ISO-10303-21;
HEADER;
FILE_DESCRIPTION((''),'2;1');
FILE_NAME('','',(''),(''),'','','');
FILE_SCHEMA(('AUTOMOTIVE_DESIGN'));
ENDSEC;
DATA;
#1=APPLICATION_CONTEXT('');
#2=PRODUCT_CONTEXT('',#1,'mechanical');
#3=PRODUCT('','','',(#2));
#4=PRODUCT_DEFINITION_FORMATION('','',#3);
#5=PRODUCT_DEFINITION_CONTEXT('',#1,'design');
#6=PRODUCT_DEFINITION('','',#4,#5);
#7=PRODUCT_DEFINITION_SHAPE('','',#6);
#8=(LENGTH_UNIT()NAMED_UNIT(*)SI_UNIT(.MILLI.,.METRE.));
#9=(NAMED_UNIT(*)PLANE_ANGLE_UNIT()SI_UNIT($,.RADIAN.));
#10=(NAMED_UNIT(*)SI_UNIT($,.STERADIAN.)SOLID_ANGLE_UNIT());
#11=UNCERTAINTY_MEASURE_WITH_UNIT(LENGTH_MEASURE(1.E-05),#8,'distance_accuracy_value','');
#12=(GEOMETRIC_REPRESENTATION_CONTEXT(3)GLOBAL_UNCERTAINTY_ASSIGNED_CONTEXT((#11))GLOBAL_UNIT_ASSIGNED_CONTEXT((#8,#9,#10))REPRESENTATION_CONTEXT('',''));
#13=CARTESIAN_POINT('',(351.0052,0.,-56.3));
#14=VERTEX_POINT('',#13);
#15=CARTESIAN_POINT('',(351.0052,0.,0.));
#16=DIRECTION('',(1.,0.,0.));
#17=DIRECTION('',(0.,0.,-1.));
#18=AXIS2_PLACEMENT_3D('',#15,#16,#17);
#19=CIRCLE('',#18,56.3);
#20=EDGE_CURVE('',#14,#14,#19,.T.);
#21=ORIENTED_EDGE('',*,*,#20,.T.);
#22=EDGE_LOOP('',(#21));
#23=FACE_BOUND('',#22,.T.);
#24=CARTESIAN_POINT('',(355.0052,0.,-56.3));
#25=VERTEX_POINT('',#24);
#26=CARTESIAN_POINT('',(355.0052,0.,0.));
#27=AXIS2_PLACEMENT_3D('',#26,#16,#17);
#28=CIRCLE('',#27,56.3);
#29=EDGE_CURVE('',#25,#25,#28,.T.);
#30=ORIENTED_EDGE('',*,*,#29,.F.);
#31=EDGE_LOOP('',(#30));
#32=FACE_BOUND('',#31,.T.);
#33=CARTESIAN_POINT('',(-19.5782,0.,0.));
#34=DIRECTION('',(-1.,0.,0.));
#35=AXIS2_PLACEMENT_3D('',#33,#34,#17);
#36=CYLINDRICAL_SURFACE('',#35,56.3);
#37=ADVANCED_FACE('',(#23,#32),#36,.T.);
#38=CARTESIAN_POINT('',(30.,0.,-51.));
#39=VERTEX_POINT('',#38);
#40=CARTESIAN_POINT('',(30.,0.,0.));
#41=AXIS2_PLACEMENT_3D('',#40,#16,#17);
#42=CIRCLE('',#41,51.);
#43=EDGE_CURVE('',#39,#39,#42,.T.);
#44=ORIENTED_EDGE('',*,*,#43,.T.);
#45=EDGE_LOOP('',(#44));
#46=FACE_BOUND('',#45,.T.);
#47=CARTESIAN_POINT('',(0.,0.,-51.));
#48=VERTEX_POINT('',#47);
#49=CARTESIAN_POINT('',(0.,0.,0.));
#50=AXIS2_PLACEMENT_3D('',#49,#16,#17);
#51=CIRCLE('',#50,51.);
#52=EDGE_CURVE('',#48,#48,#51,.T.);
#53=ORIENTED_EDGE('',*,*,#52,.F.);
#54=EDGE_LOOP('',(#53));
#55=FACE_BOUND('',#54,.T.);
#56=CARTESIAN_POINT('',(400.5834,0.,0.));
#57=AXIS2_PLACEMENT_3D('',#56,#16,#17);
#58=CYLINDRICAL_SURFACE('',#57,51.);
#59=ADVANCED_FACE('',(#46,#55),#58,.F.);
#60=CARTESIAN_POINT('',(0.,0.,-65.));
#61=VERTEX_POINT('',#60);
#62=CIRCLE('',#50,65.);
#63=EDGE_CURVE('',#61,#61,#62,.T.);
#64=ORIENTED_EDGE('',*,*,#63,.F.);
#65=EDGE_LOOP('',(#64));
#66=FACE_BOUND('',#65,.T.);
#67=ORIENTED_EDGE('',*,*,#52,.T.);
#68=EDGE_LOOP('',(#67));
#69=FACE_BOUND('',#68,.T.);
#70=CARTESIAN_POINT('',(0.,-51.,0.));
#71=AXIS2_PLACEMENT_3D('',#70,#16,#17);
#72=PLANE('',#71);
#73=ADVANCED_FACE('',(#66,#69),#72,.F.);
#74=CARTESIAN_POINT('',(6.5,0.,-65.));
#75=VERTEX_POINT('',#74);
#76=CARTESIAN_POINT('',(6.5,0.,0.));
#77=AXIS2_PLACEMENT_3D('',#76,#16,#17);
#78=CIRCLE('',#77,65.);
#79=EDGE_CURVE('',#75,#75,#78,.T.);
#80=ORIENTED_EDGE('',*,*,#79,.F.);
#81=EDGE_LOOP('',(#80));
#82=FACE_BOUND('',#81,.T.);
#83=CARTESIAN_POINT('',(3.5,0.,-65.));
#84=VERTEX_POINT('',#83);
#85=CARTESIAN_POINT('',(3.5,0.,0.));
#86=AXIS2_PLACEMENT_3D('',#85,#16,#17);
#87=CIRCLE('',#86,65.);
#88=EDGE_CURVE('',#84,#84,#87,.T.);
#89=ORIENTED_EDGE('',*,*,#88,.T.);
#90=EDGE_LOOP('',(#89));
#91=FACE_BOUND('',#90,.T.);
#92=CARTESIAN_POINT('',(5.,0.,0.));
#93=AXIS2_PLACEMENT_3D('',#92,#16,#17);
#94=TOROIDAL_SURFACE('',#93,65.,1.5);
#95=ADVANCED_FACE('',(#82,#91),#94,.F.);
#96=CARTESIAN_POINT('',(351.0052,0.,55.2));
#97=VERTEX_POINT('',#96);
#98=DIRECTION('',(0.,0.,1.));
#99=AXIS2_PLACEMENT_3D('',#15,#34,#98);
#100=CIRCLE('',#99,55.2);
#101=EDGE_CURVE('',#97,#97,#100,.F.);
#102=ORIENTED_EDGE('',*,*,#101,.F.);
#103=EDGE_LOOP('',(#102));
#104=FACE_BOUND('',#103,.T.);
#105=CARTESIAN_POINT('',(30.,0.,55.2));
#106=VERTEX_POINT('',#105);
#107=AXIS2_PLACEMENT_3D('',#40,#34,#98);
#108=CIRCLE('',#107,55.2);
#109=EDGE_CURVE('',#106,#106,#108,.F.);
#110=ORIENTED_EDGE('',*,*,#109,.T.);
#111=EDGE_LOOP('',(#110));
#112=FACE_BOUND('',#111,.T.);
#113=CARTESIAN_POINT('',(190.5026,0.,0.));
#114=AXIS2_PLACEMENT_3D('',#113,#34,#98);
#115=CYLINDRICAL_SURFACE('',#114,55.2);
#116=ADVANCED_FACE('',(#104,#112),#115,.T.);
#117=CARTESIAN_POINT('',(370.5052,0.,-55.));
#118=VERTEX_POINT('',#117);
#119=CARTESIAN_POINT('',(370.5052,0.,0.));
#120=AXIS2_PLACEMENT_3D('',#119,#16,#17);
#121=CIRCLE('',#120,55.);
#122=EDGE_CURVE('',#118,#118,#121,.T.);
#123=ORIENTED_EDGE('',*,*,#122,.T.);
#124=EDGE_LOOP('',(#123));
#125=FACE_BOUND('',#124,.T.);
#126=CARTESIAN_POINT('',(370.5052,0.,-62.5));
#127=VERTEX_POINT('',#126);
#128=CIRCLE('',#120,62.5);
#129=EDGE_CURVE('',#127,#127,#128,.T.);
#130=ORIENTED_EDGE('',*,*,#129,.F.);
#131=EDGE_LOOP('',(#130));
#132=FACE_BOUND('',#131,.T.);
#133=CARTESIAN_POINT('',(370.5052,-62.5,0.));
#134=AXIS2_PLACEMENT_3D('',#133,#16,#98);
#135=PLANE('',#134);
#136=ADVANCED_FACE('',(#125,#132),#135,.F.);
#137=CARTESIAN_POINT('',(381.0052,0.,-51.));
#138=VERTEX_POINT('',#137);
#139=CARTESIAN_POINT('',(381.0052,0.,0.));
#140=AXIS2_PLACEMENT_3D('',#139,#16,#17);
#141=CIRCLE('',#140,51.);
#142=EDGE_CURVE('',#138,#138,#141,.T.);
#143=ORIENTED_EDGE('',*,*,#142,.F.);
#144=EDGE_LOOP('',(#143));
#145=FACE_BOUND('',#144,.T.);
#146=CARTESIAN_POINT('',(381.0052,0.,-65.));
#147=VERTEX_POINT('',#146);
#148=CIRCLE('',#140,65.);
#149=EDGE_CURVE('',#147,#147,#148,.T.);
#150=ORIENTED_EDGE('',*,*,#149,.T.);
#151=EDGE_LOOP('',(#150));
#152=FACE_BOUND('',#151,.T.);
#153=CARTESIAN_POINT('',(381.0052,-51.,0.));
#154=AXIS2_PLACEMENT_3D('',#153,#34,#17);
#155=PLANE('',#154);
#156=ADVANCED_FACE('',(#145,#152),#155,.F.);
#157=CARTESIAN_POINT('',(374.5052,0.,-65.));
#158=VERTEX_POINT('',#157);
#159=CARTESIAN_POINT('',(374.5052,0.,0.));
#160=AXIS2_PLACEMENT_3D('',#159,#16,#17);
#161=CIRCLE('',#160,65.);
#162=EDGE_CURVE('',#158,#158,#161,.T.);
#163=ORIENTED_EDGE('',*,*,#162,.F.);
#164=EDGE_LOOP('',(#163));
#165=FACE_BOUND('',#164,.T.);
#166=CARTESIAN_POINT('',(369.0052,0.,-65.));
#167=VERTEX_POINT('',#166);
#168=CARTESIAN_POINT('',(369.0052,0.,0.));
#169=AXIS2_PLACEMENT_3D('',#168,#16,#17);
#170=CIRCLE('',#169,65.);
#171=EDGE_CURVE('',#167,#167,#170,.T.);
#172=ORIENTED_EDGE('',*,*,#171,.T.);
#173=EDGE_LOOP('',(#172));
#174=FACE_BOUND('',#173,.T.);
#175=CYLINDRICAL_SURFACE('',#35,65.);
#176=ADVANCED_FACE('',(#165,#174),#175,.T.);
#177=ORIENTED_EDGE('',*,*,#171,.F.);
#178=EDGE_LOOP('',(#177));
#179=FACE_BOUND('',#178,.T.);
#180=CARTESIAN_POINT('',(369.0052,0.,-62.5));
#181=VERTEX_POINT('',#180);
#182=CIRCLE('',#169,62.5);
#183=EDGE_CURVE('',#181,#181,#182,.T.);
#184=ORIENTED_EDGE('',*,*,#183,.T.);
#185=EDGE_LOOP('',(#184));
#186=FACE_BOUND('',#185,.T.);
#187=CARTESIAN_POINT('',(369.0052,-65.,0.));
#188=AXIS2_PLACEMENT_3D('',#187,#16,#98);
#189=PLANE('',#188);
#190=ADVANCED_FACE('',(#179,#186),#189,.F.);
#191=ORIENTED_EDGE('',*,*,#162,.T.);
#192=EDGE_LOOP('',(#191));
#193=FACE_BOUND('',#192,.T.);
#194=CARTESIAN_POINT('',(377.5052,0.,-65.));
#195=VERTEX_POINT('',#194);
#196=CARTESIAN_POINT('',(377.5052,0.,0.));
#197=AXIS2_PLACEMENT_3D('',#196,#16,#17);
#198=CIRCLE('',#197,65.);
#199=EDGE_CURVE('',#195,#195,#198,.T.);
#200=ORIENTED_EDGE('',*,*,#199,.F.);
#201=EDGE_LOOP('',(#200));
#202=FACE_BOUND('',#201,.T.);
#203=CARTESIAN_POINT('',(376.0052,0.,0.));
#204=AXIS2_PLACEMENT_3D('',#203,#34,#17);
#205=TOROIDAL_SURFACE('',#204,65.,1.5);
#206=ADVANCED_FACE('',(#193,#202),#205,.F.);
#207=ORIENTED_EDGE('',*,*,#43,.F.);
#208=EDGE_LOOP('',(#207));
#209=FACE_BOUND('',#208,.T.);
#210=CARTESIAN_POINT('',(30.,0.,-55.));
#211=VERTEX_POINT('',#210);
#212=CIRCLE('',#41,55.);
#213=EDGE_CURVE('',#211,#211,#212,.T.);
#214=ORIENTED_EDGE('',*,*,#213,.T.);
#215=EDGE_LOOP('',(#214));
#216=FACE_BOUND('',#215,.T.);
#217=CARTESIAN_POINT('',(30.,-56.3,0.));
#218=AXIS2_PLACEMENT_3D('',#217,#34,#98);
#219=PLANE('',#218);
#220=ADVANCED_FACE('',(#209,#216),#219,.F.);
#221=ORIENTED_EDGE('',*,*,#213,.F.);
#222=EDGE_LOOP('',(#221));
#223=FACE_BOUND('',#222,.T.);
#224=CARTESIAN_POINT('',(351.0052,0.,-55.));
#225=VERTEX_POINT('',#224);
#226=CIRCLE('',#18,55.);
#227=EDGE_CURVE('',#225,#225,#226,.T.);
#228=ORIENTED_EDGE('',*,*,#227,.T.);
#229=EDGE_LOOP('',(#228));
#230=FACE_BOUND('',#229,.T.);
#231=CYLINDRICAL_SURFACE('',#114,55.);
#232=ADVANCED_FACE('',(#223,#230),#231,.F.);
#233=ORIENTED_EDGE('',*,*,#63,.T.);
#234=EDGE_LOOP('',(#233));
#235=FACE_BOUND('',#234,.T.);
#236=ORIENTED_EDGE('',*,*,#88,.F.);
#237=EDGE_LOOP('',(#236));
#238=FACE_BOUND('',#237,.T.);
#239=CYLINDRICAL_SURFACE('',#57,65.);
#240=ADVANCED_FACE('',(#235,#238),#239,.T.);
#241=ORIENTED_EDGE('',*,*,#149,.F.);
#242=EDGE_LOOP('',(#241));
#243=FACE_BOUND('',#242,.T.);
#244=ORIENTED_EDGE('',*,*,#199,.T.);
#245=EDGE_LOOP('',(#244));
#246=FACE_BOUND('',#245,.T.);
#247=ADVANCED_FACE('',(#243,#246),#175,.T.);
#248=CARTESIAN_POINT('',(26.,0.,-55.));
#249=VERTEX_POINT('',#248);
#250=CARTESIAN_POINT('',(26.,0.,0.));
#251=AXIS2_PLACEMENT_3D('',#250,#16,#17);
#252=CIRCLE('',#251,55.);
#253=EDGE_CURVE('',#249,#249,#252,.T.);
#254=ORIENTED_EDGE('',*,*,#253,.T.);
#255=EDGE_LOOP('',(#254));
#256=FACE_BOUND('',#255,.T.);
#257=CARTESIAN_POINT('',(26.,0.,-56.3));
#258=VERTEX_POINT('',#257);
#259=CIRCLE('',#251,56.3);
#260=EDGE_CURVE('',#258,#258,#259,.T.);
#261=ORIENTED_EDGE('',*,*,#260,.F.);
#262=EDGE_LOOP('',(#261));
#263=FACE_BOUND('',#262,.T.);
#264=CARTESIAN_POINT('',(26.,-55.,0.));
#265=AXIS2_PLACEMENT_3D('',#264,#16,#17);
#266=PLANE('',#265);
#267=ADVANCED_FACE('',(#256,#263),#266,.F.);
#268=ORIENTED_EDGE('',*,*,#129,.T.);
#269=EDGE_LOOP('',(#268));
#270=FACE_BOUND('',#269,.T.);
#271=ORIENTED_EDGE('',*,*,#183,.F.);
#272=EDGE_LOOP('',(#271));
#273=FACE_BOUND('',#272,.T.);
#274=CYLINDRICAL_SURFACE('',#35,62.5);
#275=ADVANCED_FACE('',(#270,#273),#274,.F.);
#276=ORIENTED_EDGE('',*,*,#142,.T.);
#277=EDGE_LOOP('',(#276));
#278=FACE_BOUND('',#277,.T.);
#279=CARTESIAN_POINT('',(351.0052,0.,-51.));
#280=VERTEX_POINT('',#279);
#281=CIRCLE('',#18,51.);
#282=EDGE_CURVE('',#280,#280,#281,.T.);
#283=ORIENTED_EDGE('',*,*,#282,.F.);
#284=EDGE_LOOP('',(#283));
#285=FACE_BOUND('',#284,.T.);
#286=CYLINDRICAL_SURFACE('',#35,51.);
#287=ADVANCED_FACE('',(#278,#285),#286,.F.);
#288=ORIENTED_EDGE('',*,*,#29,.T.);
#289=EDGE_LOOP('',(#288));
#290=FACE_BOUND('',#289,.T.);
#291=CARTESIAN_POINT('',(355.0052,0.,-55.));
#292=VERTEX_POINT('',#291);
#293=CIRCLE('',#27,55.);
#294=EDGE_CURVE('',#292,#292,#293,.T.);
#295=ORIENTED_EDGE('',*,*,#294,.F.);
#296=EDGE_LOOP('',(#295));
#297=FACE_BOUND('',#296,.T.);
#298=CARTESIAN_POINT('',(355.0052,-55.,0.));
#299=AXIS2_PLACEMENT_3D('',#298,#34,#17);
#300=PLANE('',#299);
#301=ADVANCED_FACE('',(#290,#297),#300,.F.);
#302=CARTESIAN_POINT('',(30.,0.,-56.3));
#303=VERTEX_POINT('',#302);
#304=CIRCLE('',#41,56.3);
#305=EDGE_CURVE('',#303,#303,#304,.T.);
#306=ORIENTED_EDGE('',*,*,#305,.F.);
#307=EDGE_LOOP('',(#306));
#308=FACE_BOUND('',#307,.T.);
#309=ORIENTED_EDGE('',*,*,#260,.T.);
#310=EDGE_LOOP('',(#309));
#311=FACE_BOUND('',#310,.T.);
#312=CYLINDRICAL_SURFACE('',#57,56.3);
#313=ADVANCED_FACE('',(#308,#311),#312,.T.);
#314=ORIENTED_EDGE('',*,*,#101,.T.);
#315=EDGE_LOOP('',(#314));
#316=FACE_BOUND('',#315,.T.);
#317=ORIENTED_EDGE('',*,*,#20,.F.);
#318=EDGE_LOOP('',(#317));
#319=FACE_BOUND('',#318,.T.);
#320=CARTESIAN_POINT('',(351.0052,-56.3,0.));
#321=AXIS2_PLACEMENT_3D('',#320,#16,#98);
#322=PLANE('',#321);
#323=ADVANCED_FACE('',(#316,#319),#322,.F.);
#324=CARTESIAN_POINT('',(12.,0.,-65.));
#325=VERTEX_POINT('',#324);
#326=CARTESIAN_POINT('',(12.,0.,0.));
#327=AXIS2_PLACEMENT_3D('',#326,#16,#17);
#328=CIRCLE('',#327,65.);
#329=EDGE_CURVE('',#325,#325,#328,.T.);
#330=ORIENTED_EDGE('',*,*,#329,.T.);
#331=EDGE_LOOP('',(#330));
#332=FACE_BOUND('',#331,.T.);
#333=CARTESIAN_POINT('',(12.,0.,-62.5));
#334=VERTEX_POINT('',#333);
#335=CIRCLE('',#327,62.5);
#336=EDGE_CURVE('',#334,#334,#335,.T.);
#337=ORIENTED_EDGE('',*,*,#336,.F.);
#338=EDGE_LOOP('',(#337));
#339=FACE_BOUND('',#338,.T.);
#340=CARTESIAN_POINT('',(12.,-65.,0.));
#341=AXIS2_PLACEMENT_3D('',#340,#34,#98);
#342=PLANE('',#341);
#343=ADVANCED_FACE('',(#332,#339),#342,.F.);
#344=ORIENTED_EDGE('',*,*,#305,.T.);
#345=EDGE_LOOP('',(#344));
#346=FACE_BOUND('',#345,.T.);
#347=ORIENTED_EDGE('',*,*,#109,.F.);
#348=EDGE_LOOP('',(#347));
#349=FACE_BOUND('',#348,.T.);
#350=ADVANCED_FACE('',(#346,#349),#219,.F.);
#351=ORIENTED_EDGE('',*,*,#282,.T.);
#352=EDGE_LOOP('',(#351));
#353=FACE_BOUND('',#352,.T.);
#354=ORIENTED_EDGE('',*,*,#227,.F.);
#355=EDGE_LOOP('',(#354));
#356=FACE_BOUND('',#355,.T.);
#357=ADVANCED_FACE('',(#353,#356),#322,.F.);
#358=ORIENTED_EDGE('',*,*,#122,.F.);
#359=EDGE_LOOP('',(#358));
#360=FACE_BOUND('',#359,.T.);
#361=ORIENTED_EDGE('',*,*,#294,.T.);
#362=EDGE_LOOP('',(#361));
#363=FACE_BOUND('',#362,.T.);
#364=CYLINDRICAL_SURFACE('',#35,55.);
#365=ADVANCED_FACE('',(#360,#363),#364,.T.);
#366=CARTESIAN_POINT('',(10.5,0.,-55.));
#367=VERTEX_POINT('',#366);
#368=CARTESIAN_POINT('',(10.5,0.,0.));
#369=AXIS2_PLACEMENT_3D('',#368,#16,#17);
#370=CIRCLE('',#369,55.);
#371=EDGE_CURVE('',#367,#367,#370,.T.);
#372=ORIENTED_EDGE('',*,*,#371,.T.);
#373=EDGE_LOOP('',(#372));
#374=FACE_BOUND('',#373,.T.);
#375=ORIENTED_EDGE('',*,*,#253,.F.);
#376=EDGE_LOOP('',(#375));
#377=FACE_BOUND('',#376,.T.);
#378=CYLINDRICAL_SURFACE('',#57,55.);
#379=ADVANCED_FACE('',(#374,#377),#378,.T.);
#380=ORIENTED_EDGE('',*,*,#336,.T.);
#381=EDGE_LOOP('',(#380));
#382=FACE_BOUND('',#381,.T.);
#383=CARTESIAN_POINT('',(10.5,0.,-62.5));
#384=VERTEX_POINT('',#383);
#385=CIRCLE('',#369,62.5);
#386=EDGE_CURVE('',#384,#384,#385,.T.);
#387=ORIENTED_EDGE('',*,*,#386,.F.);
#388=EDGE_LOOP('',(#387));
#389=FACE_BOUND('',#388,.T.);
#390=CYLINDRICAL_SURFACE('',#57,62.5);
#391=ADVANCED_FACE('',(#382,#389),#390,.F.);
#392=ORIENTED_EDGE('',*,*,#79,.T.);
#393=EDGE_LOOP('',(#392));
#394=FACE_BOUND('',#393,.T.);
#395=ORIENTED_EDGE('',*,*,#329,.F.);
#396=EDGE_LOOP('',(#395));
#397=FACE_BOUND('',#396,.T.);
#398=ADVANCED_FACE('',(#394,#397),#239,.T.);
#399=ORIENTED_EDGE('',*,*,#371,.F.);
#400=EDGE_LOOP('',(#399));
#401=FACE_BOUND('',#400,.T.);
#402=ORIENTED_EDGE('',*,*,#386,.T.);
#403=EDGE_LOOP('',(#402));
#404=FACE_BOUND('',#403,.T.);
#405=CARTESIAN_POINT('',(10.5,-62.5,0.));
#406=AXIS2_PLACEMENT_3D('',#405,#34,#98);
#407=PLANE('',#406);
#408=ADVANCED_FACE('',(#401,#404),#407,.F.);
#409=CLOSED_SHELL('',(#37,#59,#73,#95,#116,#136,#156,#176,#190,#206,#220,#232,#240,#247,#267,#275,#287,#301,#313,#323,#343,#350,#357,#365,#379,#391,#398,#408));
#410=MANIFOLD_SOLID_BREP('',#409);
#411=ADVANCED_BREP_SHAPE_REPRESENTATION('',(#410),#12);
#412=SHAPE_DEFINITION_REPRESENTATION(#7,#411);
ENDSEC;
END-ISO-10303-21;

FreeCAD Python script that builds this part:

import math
import FreeCAD as App
import Part
import Sketcher
Q = App.Units.Quantity

doc = App.newDocument("Part")
params = doc.addObject("Spreadsheet::Sheet", "Params")
for row, (alias, value) in enumerate([
    ("sketch1_radius", "1.5 mm"),
    ("sketch1_width", "4 mm"),
    ("sketch1_width2", "30 mm"),
    ("sketch1_height", "14 mm"),
    ("sketch1_width3", "3.5 mm"),
    ("revolution_angle", "360 deg"),
    ("sketch2_diameter", "110 mm"),
    ("sketch2_diameter2", "110.4 mm"),
    ("pad1_length", "160.5026 mm"),
], start=1):
    params.set(f"A{row}", alias)
    params.set(f"B{row}", "=" + value)
    params.setAlias(f"B{row}", alias)

body = doc.addObject("PartDesign::Body", "Body")

sketch1 = body.newObject("Sketcher::SketchObject", "Sketch")
sketch1.AttachmentSupport = (doc.getObject("XY_Plane"), [""])
sketch1.MapMode = "FlatFace"
sketch1.addGeometry(Part.LineSegment(App.Vector(0, -51, 0), App.Vector(0, -65, 0)), False)
sketch1.addGeometry(Part.LineSegment(App.Vector(0, -65, 0), App.Vector(3.5, -65, 0)), False)
sketch1.addGeometry(Part.ArcOfCircle(Part.Circle(App.Vector(5, -65, 0), App.Vector(0, 0, 1), 1.5), math.radians(0), math.radians(180)), False)
sketch1.addGeometry(Part.LineSegment(App.Vector(6.5, -65, 0), App.Vector(12, -65, 0)), False)
sketch1.addGeometry(Part.LineSegment(App.Vector(12, -65, 0), App.Vector(12, -62.5, 0)), False)
sketch1.addGeometry(Part.LineSegment(App.Vector(12, -62.5, 0), App.Vector(10.5, -62.5, 0)), False)
sketch1.addGeometry(Part.LineSegment(App.Vector(10.5, -62.5, 0), App.Vector(10.5, -55, 0)), False)
sketch1.addGeometry(Part.LineSegment(App.Vector(10.5, -55, 0), App.Vector(26, -55, 0)), False)
sketch1.addGeometry(Part.LineSegment(App.Vector(26, -55, 0), App.Vector(26, -56.3, 0)), False)
sketch1.addGeometry(Part.LineSegment(App.Vector(26, -56.3, 0), App.Vector(30, -56.3, 0)), False)
sketch1.addGeometry(Part.LineSegment(App.Vector(30, -56.3, 0), App.Vector(30, -51, 0)), False)
sketch1.addGeometry(Part.LineSegment(App.Vector(30, -51, 0), App.Vector(0, -51, 0)), False)
sketch1.addConstraint(Sketcher.Constraint("Coincident", 0, 2, 1, 1))
sketch1.addConstraint(Sketcher.Constraint("Coincident", 1, 2, 2, 2))
sketch1.addConstraint(Sketcher.Constraint("Coincident", 2, 1, 3, 1))
sketch1.addConstraint(Sketcher.Constraint("Coincident", 3, 2, 4, 1))
sketch1.addConstraint(Sketcher.Constraint("Coincident", 4, 2, 5, 1))
sketch1.addConstraint(Sketcher.Constraint("Coincident", 5, 2, 6, 1))
sketch1.addConstraint(Sketcher.Constraint("Coincident", 6, 2, 7, 1))
sketch1.addConstraint(Sketcher.Constraint("Coincident", 7, 2, 8, 1))
sketch1.addConstraint(Sketcher.Constraint("Coincident", 8, 2, 9, 1))
sketch1.addConstraint(Sketcher.Constraint("Coincident", 9, 2, 10, 1))
sketch1.addConstraint(Sketcher.Constraint("Coincident", 10, 2, 11, 1))
sketch1.addConstraint(Sketcher.Constraint("Coincident", 11, 2, 0, 1))
sketch1.addConstraint(Sketcher.Constraint("Vertical", 0))
sketch1.addConstraint(Sketcher.Constraint("Horizontal", 1))
sketch1.addConstraint(Sketcher.Constraint("Horizontal", 3))
sketch1.addConstraint(Sketcher.Constraint("Vertical", 4))
sketch1.addConstraint(Sketcher.Constraint("Horizontal", 5))
sketch1.addConstraint(Sketcher.Constraint("Vertical", 6))
sketch1.addConstraint(Sketcher.Constraint("Horizontal", 7))
sketch1.addConstraint(Sketcher.Constraint("Vertical", 8))
sketch1.addConstraint(Sketcher.Constraint("Horizontal", 9))
sketch1.addConstraint(Sketcher.Constraint("Vertical", 10))
sketch1.addConstraint(Sketcher.Constraint("Horizontal", 11))
sketch1.addConstraint(Sketcher.Constraint("PointOnObject", 0, 2, -2))
sketch1.addConstraint(Sketcher.Constraint("Horizontal", 2, 3, 0, 2))
sketch1.addConstraint(Sketcher.Constraint("Horizontal", 1, 2, 2, 1))
sketch1.addConstraint(Sketcher.Constraint("Radius", 2, Q("1.5 mm")))
sketch1.addConstraint(Sketcher.Constraint("DistanceX", 9, 1, 9, 2, Q("4 mm")))
sketch1.addConstraint(Sketcher.Constraint("DistanceX", 11, 2, 11, 1, Q("30 mm")))
sketch1.addConstraint(Sketcher.Constraint("DistanceY", 0, 2, 0, 1, Q("14 mm")))
sketch1.addConstraint(Sketcher.Constraint("DistanceX", 1, 1, 1, 2, Q("3.5 mm")))
sketch1.addConstraint(Sketcher.Constraint("DistanceX", 3, 1, 3, 2, Q("5.5 mm")))
sketch1.addConstraint(Sketcher.Constraint("DistanceX", 5, 2, 5, 1, Q("1.5 mm")))
sketch1.addConstraint(Sketcher.Constraint("DistanceY", 4, 1, 4, 2, Q("2.5 mm")))
sketch1.addConstraint(Sketcher.Constraint("DistanceY", 6, 1, 6, 2, Q("7.5 mm")))
sketch1.addConstraint(Sketcher.Constraint("DistanceY", 8, 2, 8, 1, Q("1.3 mm")))
sketch1.addConstraint(Sketcher.Constraint("DistanceY", 2, 3, -1, 1, Q("65 mm")))
sketch1.setExpression("Constraints[26]", "Params.sketch1_radius")
sketch1.setExpression("Constraints[27]", "Params.sketch1_width")
sketch1.setExpression("Constraints[28]", "Params.sketch1_width2")
sketch1.setExpression("Constraints[29]", "Params.sketch1_height")
sketch1.setExpression("Constraints[30]", "Params.sketch1_width3")
revolution = body.newObject("PartDesign::Revolution", "Revolution")
revolution.Profile = sketch1
revolution.ReferenceAxis = (sketch1, ["H_Axis"])
revolution.setExpression("Angle", "Params.revolution_angle")

sketch2 = body.newObject("Sketcher::SketchObject", "Sketch001")
sketch2.AttachmentSupport = (doc.getObject("YZ_Plane"), [""])
sketch2.MapMode = "FlatFace"
sketch2.AttachmentOffset = App.Placement(App.Vector(0, 0, 190.5026), App.Rotation())
sketch2.addGeometry(Part.Circle(App.Vector(0, 0, 0), App.Vector(0, 0, 1), 55.2), False)
sketch2.addGeometry(Part.Circle(App.Vector(0, 0, 0), App.Vector(0, 0, 1), 55), False)
sketch2.addConstraint(Sketcher.Constraint("Coincident", 0, 3, -1, 1))
sketch2.addConstraint(Sketcher.Constraint("Coincident", 1, 3, -1, 1))
sketch2.addConstraint(Sketcher.Constraint("Diameter", 1, Q("110 mm")))
sketch2.addConstraint(Sketcher.Constraint("Diameter", 0, Q("110.4 mm")))
sketch2.setExpression("Constraints[2]", "Params.sketch2_diameter")
sketch2.setExpression("Constraints[3]", "Params.sketch2_diameter2")
pad1 = body.newObject("PartDesign::Pad", "Pad")
pad1.Profile = sketch2
pad1.setExpression("Length", "Params.pad1_length")
pad1.Reversed = True
doc.recompute()

datumplane = body.newObject("PartDesign::Plane", "DatumPlane")
datumplane.AttachmentSupport = (doc.getObject("YZ_Plane"), [""])
datumplane.MapMode = "FlatFace"
datumplane.AttachmentOffset = App.Placement(App.Vector(0, 0, 190.5026), App.Rotation())
mirrored = body.newObject("PartDesign::Mirrored", "Mirrored")
mirrored.Originals = [revolution, pad1]
mirrored.MirrorPlane = (datumplane, [""])
body.Tip = mirrored

doc.recompute()
